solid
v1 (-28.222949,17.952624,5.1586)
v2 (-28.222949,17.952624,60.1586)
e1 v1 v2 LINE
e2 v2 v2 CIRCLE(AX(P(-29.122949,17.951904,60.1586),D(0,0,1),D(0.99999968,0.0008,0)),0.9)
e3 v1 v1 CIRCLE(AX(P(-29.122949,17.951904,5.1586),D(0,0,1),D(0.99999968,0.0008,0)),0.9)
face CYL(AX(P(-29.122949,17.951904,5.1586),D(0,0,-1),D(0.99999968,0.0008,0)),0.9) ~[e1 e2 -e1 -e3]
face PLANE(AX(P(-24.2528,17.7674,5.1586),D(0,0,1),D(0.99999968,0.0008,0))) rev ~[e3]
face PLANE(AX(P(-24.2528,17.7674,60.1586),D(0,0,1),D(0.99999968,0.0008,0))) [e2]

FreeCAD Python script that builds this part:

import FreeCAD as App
import Part
import Sketcher

doc = App.newDocument("Part")
params = doc.addObject("Spreadsheet::Sheet", "Params")
for row, (alias, value) in enumerate([
    ("sketch1_diameter", "1.8 mm"),
    ("pad1_length", "55 mm"),
], start=1):
    params.set(f"A{row}", alias)
    params.set(f"B{row}", "=" + value)
    params.setAlias(f"B{row}", alias)

body = doc.addObject("PartDesign::Body", "Body")

sketch1 = body.newObject("Sketcher::SketchObject", "Sketch")
sketch1.AttachmentSupport = (doc.getObject("XY_Plane"), [""])
sketch1.MapMode = "FlatFace"
sketch1.AttachmentOffset = App.Placement(App.Vector(0, 0, 5.1586), App.Rotation())
sketch1.addGeometry(Part.Circle(App.Vector(-29.122949, 17.951904, 0), App.Vector(0, 0, 1), 0.9), False)
sketch1.addConstraint([
    Sketcher.Constraint("Diameter", 0, 1.8),
    Sketcher.Constraint("DistanceX", 0, 3, -1, 1, 29.123),
    Sketcher.Constraint("DistanceY", -1, 1, 0, 3, 17.952),
])
sketch1.setExpression("Constraints[0]", "Params.sketch1_diameter")
pad1 = body.newObject("PartDesign::Pad", "Pad")
pad1.Profile = sketch1
pad1.setExpression("Length", "Params.pad1_length")

doc.recompute()
